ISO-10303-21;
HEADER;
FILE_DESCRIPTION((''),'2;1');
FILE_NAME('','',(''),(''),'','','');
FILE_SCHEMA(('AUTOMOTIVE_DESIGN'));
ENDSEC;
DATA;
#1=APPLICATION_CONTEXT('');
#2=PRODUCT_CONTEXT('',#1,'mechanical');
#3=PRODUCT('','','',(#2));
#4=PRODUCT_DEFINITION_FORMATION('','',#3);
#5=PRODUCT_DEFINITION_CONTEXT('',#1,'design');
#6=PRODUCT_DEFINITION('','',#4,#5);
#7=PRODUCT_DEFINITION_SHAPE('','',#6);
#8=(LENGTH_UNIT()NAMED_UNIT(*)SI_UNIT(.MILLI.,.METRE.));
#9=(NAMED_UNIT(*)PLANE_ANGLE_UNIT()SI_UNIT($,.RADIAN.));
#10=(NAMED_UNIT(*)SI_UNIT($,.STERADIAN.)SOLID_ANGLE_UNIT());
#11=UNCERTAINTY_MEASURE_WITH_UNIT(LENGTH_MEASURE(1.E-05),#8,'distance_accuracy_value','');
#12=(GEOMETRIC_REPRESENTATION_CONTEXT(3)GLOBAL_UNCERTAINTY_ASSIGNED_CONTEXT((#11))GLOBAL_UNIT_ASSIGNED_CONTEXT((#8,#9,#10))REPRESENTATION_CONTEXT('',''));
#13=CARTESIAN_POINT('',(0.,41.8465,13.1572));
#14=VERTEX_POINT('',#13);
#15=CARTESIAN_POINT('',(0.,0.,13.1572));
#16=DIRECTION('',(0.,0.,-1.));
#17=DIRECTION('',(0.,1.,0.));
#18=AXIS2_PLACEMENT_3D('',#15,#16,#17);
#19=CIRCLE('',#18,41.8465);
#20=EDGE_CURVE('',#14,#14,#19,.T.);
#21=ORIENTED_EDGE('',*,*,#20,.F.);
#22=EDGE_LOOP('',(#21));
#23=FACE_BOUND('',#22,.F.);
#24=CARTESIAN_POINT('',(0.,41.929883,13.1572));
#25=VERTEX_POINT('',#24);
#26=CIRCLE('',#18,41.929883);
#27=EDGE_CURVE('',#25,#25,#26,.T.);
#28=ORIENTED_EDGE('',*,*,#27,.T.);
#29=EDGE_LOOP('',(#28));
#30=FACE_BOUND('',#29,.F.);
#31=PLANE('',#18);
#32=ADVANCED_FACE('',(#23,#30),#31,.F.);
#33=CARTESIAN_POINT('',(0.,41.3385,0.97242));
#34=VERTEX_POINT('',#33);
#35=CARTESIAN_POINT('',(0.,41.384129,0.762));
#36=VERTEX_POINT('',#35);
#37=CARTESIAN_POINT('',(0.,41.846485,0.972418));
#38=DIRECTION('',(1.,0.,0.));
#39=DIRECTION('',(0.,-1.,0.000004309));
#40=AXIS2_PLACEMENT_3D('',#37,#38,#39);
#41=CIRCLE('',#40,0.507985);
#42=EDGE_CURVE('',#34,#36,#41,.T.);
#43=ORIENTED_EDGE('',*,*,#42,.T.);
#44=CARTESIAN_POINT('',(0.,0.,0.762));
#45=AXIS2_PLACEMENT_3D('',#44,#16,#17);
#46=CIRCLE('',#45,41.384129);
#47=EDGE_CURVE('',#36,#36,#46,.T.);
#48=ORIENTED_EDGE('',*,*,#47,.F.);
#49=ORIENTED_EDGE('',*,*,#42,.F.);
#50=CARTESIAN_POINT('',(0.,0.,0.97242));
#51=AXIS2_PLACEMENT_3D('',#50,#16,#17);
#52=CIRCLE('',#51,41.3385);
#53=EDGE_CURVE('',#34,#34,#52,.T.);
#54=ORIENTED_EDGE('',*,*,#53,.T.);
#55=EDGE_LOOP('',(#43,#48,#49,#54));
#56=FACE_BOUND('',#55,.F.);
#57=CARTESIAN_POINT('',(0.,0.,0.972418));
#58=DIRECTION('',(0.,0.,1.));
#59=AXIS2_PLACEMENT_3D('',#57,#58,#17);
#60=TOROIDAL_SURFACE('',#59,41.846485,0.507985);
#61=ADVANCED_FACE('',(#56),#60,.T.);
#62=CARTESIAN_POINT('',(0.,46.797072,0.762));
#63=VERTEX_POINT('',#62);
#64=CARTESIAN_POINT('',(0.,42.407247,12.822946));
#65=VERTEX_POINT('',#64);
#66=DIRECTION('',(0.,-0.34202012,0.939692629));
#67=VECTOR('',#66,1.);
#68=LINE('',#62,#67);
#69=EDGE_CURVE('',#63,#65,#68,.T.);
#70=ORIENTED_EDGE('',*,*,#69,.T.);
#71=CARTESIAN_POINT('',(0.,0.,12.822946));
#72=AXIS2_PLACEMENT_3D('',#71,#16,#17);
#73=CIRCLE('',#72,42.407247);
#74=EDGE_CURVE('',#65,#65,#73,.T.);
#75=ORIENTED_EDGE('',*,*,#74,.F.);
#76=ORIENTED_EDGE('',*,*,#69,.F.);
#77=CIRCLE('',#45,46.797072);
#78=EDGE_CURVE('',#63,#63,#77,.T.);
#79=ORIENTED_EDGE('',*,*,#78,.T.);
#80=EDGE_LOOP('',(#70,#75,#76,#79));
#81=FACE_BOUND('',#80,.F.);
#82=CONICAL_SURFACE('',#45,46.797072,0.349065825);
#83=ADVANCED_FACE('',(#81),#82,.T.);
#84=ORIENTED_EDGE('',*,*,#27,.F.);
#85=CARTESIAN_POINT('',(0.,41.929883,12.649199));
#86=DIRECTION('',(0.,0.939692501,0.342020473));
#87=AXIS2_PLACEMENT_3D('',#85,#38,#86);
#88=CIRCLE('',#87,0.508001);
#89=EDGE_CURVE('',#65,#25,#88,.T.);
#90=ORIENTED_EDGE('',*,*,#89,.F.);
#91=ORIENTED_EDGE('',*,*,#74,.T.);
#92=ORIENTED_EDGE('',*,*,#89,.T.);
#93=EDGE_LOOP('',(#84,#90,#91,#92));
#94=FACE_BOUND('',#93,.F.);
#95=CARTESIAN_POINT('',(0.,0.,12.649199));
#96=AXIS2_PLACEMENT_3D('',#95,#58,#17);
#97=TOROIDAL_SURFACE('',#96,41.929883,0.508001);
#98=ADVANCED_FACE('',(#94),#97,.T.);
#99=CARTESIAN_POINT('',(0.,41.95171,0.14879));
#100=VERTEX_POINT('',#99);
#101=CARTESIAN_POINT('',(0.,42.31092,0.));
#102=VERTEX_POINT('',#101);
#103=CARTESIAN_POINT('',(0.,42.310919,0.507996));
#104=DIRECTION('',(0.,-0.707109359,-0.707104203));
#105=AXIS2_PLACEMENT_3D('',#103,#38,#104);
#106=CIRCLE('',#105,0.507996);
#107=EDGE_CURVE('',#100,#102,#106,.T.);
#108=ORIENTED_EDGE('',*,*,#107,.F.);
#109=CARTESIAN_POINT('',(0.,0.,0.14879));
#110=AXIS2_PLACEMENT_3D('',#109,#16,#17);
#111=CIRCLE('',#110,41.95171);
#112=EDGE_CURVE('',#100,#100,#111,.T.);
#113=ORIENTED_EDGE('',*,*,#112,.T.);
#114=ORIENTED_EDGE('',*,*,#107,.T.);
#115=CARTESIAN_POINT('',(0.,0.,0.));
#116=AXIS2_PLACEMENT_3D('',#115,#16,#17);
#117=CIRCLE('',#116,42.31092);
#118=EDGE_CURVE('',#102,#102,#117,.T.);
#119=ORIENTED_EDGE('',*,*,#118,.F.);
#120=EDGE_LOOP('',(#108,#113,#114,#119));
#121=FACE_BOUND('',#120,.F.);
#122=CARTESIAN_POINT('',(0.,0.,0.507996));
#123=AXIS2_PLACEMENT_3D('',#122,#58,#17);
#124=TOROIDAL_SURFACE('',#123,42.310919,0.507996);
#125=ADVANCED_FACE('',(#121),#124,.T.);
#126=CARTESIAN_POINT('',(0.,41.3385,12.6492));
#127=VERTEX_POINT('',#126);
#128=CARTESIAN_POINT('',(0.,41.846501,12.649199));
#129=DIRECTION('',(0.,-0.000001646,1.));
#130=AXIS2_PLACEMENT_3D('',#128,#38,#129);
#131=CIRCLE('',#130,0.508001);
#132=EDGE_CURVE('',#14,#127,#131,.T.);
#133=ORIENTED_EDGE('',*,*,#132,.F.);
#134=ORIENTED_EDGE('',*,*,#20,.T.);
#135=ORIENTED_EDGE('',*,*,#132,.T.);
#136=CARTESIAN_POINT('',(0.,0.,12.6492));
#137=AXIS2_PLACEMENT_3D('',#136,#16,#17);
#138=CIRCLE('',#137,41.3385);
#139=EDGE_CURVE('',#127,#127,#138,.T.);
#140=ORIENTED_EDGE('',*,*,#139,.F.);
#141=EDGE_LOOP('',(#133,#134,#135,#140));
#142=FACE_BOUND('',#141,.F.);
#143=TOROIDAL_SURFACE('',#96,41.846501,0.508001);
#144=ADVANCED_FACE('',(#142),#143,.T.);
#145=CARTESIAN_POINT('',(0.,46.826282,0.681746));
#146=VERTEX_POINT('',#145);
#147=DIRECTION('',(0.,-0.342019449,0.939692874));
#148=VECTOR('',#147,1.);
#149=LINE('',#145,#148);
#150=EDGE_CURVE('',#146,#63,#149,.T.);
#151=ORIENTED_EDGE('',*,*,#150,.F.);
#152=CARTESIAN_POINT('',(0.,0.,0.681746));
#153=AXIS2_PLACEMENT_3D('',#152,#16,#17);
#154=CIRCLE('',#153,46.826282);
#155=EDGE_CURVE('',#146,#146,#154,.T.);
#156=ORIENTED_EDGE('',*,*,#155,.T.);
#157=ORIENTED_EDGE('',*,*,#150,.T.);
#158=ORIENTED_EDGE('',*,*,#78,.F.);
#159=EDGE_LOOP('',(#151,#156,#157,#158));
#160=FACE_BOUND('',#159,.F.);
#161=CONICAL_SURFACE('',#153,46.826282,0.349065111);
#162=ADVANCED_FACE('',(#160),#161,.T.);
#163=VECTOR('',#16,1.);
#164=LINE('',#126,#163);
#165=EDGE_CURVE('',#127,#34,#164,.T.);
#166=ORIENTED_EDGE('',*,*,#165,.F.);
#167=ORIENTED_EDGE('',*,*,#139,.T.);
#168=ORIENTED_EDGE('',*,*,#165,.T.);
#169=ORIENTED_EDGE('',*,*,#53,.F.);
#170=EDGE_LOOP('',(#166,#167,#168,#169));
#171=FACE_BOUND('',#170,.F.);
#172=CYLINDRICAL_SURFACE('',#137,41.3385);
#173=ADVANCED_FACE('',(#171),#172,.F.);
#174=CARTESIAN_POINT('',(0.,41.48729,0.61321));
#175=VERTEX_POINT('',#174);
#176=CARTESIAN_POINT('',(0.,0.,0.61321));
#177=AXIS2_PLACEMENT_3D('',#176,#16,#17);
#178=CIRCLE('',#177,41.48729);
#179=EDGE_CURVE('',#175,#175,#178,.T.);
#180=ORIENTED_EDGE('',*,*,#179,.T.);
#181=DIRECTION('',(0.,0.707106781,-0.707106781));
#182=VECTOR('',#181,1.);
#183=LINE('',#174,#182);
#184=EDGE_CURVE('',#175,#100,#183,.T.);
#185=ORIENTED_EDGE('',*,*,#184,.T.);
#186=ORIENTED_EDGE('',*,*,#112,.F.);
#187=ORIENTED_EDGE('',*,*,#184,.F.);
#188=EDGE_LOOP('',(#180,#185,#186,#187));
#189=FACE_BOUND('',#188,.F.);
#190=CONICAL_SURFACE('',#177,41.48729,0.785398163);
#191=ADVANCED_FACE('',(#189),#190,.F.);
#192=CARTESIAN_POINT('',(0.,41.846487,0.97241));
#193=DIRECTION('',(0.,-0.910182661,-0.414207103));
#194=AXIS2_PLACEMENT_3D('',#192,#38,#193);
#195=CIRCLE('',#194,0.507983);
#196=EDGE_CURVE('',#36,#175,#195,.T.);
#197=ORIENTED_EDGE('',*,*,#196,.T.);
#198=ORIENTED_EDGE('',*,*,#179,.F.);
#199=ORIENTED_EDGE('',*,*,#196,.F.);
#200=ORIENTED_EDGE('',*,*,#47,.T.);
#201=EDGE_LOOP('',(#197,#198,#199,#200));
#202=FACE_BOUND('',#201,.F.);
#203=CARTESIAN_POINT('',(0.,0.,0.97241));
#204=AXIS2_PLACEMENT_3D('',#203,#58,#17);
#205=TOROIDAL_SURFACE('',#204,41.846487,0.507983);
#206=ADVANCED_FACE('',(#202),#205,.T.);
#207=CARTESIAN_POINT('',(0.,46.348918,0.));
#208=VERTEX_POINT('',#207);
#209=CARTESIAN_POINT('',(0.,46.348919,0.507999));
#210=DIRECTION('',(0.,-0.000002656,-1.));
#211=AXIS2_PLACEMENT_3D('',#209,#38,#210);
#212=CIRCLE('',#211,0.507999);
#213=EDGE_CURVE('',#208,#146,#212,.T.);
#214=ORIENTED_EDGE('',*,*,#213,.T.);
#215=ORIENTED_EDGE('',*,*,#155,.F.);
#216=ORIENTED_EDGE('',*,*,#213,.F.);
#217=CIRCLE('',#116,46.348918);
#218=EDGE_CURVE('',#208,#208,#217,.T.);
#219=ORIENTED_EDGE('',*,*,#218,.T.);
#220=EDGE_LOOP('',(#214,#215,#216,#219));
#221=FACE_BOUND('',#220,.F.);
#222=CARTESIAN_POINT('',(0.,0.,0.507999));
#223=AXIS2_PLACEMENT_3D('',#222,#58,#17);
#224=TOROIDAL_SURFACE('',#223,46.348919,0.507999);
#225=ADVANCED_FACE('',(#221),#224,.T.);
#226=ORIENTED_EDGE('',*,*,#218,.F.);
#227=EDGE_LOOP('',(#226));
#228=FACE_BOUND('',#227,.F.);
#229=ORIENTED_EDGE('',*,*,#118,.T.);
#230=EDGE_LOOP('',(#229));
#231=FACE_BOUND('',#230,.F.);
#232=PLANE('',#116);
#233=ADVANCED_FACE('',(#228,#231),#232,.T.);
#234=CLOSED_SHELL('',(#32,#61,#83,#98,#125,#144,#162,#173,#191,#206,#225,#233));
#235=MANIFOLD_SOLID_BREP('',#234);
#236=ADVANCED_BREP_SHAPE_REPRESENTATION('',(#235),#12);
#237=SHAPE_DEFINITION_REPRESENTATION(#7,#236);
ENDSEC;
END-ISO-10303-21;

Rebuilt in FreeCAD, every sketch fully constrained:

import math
import FreeCAD as App
import Part
import Sketcher
from FreeCAD import Vector
Q = App.Units.Quantity

doc = App.newDocument("Part")
body = doc.addObject("PartDesign::Body", "Body")

sketch1 = body.newObject("Sketcher::SketchObject", "Sketch")
sketch1.AttachmentSupport = (doc.getObject("YZ_Plane"), [""])
sketch1.MapMode = "FlatFace"
sketch1.addGeometry(Part.ArcOfCircle(Part.Circle(Vector(42.31, 0.51, 0), Vector(0, 0, 1), 0.51), math.radians(-135), math.radians(-90)), False)
sketch1.addGeometry(Part.LineSegment(Vector(42.31, 0, 0), Vector(46.35, 0, 0)), False)
sketch1.addGeometry(Part.ArcOfCircle(Part.Circle(Vector(46.35, 0.51, 0), Vector(0, 0, 1), 0.51), math.radians(-90), math.radians(20)), False)
sketch1.addGeometry(Part.LineSegment(Vector(46.83, 0.68, 0), Vector(46.8, 0.76, 0)), False)
sketch1.addGeometry(Part.LineSegment(Vector(46.8, 0.76, 0), Vector(42.41, 12.82, 0)), False)
sketch1.addGeometry(Part.ArcOfCircle(Part.Circle(Vector(41.93, 12.65, 0), Vector(0, 0, 1), 0.51), math.radians(20), math.radians(90)), False)
sketch1.addGeometry(Part.LineSegment(Vector(41.93, 13.16, 0), Vector(41.85, 13.16, 0)), False)
sketch1.addGeometry(Part.ArcOfCircle(Part.Circle(Vector(41.85, 12.65, 0), Vector(0, 0, 1), 0.51), math.radians(90), math.radians(180)), False)
sketch1.addGeometry(Part.LineSegment(Vector(41.34, 12.65, 0), Vector(41.34, 0.97, 0)), False)
sketch1.addGeometry(Part.ArcOfCircle(Part.Circle(Vector(41.85, 0.97, 0), Vector(0, 0, 1), 0.51), math.radians(180), math.radians(204)), False)
sketch1.addGeometry(Part.ArcOfCircle(Part.Circle(Vector(41.85, 0.97, 0), Vector(0, 0, 1), 0.51), math.radians(-156), math.radians(-135)), False)
sketch1.addGeometry(Part.LineSegment(Vector(41.49, 0.61, 0), Vector(41.95, 0.15, 0)), False)
sketch1.addConstraint(Sketcher.Constraint("Coincident", 0, 2, 1, 1))
sketch1.addConstraint(Sketcher.Constraint("Coincident", 1, 2, 2, 1))
sketch1.addConstraint(Sketcher.Constraint("Coincident", 2, 2, 3, 1))
sketch1.addConstraint(Sketcher.Constraint("Coincident", 3, 2, 4, 1))
sketch1.addConstraint(Sketcher.Constraint("Tangent", 4, 2, 5, 1))
sketch1.addConstraint(Sketcher.Constraint("Tangent", 5, 2, 6, 1))
sketch1.addConstraint(Sketcher.Constraint("Tangent", 6, 2, 7, 1))
sketch1.addConstraint(Sketcher.Constraint("Tangent", 7, 2, 8, 1))
sketch1.addConstraint(Sketcher.Constraint("Coincident", 8, 2, 9, 1))
sketch1.addConstraint(Sketcher.Constraint("Coincident", 9, 2, 10, 1))
sketch1.addConstraint(Sketcher.Constraint("Coincident", 10, 2, 11, 1))
sketch1.addConstraint(Sketcher.Constraint("Coincident", 11, 2, 0, 1))
sketch1.addConstraint(Sketcher.Constraint("Horizontal", 1))
sketch1.addConstraint(Sketcher.Constraint("Horizontal", 6))
sketch1.addConstraint(Sketcher.Constraint("Vertical", 8))
sketch1.addConstraint(Sketcher.Constraint("Coincident", 10, 3, 9, 3))
sketch1.addConstraint(Sketcher.Constraint("Equal", 2, 5))
sketch1.addConstraint(Sketcher.Constraint("Equal", 5, 7))
sketch1.addConstraint(Sketcher.Constraint("PointOnObject", 0, 2, -1))
sketch1.addConstraint(Sketcher.Constraint("Parallel", 3, 4))
sketch1.addConstraint(Sketcher.Constraint("Horizontal", 3, 2, 9, 2))
sketch1.addConstraint(Sketcher.Constraint("Vertical", 2, 3, 1, 2))
sketch1.addConstraint(Sketcher.Constraint("Radius", 0, Q("0.0199999 in")))
sketch1.addConstraint(Sketcher.Constraint("Radius", 2, Q("0.02 in")))
sketch1.addConstraint(Sketcher.Constraint("Angle", 4, Q("109.999999 deg")))
sketch1.addConstraint(Sketcher.Constraint("Angle", 11, Q("-45 deg")))
sketch1.addConstraint(Sketcher.Constraint("DistanceY", -1, 1, 3, 2, Q("0.03 in")))
sketch1.addConstraint(Sketcher.Constraint("DistanceY", -1, 1, 5, 3, Q("0.498 in")))
sketch1.addConstraint(Sketcher.Constraint("DistanceX", -1, 1, 7, 3, Q("1.6475 in")))
sketch1.addConstraint(Sketcher.Constraint("Radius", 9, 0.507985))
sketch1.addConstraint(Sketcher.Constraint("DistanceY", 8, 2, 8, 1, 11.67678))
sketch1.addConstraint(Sketcher.Constraint("DistanceX", 0, 3, 2, 3, 4.038))
sketch1.addConstraint(Sketcher.Constraint("DistanceX", 9, 3, 5, 3, 0.083398))
sketch1.addConstraint(Sketcher.Constraint("DistanceX", 0, 2, 2, 3, 4.037999))
sketch1.addConstraint(Sketcher.Constraint("DistanceY", 10, 2, 10, 3, 0.3592))
sketch1.addConstraint(Sketcher.Constraint("Distance", 11, 0.656789))
sketch1.addConstraint(Sketcher.Constraint("DistanceX", -1, 1, 2, 2, 46.826282))
revolution = body.newObject("PartDesign::Revolution", "Revolution")
revolution.Profile = sketch1
revolution.ReferenceAxis = (sketch1, ["V_Axis"])
revolution.Angle = 360

doc.recompute()
